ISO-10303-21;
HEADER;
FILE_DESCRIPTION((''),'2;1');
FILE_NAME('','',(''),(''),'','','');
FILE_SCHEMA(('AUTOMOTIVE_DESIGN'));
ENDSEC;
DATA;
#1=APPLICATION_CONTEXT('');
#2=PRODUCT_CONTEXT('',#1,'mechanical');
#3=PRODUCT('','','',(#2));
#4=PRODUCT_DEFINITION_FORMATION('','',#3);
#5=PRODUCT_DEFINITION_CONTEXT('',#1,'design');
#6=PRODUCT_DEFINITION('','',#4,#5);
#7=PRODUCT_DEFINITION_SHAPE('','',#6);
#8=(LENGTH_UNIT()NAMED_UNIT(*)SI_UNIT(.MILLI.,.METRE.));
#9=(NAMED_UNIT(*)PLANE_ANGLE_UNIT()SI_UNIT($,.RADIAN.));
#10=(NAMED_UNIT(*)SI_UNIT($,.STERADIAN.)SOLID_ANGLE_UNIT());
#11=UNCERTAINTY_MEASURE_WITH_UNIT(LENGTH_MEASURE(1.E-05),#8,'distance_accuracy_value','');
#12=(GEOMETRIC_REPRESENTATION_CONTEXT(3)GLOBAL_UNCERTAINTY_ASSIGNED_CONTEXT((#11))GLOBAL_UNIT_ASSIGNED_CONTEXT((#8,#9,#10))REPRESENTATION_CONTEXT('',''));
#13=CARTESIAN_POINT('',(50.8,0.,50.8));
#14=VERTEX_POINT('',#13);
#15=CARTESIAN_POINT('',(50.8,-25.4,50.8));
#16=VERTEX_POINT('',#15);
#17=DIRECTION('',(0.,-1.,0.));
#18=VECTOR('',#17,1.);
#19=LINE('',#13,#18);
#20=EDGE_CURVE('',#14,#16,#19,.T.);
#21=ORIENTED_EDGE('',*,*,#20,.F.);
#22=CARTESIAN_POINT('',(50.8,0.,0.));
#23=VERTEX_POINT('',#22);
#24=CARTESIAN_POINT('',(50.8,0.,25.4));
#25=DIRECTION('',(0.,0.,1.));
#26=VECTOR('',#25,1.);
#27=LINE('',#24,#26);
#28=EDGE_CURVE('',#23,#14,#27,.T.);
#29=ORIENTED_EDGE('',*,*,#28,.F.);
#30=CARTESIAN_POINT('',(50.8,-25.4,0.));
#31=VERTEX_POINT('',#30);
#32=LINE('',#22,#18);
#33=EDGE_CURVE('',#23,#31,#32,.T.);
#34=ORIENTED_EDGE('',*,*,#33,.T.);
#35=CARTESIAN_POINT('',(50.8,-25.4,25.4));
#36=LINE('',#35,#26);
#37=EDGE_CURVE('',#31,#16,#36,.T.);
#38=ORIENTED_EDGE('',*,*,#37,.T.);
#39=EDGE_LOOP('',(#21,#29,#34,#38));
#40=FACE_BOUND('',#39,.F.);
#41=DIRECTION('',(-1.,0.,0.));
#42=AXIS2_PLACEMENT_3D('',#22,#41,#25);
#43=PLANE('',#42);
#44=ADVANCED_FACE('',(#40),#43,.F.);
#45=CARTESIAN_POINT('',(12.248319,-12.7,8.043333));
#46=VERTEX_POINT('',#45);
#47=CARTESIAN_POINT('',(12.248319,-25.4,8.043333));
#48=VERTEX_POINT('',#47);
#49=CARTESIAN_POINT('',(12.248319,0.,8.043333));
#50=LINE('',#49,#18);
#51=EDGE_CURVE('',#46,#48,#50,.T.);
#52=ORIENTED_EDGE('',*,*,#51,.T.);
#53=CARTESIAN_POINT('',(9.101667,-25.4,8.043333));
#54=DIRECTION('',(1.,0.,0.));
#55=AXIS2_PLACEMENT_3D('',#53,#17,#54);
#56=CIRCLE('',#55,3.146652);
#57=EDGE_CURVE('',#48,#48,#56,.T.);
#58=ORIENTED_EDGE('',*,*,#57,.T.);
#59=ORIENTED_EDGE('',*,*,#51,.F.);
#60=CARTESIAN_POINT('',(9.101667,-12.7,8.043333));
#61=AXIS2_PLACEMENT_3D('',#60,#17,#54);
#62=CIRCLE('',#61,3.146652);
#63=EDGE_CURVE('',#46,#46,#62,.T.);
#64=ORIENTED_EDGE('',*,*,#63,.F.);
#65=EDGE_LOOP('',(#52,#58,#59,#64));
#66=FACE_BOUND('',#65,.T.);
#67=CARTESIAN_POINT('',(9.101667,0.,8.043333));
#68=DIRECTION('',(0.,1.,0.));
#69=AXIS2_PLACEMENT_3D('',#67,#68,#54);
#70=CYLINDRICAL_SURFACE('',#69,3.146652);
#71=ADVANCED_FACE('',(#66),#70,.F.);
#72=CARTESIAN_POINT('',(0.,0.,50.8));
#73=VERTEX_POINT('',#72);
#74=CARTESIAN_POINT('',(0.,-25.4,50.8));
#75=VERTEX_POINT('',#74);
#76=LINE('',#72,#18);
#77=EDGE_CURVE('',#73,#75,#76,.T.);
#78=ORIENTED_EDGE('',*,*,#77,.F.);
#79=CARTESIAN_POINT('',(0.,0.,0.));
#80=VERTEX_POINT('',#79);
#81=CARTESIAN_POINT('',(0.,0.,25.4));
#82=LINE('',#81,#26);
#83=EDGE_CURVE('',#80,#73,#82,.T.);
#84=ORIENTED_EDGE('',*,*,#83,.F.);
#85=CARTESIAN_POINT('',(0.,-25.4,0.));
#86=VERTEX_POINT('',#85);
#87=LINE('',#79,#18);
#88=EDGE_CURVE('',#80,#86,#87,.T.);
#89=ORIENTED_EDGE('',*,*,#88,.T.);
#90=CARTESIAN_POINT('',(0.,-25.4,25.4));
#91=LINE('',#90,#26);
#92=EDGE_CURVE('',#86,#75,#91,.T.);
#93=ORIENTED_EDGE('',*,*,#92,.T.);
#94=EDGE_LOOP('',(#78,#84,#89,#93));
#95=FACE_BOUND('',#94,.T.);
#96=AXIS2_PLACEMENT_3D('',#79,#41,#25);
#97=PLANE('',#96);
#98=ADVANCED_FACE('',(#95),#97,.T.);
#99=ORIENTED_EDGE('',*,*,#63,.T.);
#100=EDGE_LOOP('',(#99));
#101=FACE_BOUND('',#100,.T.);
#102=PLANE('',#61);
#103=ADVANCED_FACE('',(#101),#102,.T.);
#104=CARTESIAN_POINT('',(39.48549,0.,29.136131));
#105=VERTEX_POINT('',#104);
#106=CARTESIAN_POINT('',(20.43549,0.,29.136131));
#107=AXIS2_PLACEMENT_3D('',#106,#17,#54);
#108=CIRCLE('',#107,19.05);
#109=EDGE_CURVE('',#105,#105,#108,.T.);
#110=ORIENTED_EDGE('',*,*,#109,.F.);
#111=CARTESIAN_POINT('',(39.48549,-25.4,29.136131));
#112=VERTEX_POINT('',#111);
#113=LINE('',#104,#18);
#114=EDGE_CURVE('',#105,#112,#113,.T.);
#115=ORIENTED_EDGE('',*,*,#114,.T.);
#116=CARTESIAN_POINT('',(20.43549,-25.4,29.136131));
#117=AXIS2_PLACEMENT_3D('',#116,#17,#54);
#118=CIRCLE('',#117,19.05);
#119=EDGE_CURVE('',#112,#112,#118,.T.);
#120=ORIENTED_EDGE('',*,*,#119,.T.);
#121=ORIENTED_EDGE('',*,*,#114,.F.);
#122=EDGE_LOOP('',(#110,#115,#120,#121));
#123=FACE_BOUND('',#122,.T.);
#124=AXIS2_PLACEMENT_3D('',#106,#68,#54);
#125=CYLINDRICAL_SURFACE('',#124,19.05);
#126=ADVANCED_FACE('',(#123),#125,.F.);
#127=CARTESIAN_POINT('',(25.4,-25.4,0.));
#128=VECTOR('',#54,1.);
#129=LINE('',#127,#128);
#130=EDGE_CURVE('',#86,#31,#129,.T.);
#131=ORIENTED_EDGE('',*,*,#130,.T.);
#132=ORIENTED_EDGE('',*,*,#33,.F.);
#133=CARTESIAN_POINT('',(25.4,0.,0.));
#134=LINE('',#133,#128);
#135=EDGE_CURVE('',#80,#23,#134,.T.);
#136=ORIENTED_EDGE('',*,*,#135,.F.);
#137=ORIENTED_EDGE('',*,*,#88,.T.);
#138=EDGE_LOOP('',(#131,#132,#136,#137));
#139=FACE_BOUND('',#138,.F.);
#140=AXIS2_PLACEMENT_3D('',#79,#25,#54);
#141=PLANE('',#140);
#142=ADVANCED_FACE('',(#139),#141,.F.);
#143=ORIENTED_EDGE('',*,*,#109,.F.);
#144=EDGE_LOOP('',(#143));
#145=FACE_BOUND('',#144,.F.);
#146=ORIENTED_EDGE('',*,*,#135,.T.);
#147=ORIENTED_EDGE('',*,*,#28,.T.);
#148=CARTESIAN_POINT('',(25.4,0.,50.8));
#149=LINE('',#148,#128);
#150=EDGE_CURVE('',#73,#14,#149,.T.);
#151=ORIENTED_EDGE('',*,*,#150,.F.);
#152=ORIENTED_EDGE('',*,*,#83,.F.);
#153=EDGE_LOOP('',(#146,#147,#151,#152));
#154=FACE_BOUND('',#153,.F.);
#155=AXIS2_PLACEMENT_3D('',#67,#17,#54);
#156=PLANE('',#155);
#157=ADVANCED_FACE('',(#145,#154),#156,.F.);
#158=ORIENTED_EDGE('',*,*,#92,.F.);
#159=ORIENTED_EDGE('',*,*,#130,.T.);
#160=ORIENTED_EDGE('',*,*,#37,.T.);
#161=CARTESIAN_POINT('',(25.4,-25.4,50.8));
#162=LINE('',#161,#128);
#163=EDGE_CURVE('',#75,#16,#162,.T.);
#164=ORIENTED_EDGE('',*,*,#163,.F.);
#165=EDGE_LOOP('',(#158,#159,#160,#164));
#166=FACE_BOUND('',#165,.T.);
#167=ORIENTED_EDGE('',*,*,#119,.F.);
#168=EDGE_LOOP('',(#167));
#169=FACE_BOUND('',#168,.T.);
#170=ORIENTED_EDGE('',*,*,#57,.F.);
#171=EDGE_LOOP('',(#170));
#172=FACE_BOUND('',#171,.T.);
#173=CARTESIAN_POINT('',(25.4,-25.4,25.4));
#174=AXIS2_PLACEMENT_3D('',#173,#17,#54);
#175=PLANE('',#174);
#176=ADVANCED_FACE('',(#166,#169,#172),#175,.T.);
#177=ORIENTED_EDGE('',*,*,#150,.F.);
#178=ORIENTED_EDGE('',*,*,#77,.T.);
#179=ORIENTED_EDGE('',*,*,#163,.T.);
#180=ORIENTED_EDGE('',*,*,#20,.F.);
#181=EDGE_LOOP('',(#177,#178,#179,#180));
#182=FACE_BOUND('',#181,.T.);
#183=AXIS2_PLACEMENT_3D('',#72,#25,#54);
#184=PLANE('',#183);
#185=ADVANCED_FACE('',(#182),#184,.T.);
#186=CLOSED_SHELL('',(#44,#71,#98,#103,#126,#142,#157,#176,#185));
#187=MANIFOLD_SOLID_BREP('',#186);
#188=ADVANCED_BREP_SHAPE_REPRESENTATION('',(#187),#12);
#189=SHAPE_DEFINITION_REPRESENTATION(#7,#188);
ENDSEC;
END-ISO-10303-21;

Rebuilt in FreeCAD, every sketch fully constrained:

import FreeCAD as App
import Part
import Sketcher
Q = App.Units.Quantity


def add_polygon(sketch, points):
    """Adds a closed chain of lines whose ends are joined by coincident constraints."""
    first, n = sketch.GeometryCount, len(points)
    for a, b in zip(points, points[1:] + points[:1]):
        sketch.addGeometry(Part.LineSegment(App.Vector(*a, 0), App.Vector(*b, 0)), False)
    for i in range(n):
        sketch.addConstraint(Sketcher.Constraint("Coincident", first + i, 2, first + (i + 1) % n, 1))

doc = App.newDocument("Part")
body = doc.addObject("PartDesign::Body", "Body")

# Sketch on XZ plane
sketch1 = body.newObject("Sketcher::SketchObject", "Sketch")
sketch1.AttachmentSupport = (doc.getObject("XZ_Plane"), [""])
sketch1.MapMode = "FlatFace"
add_polygon(sketch1, [(0, 50.8), (0, 0), (50.8, 0), (50.8, 50.8)])  # lines 0-3
sketch1.addGeometry(Part.Circle(App.Vector(9.1, 8, 0), App.Vector(0, 0, 1), 3.1), False)  # 4
sketch1.addGeometry(Part.Circle(App.Vector(20.4, 29.1, 0), App.Vector(0, 0, 1), 19.1), False)  # 5
sketch1.addConstraint(Sketcher.Constraint("Vertical", 0))
sketch1.addConstraint(Sketcher.Constraint("Horizontal", 1))
sketch1.addConstraint(Sketcher.Constraint("Vertical", 2))
sketch1.addConstraint(Sketcher.Constraint("Horizontal", 3))
sketch1.addConstraint(Sketcher.Constraint("Coincident", 0, 2, -1, 1))
sketch1.addConstraint(Sketcher.Constraint("Equal", 3, 0))
sketch1.addConstraint(Sketcher.Constraint("Diameter", 5, Q("1.5 in")))
sketch1.addConstraint(Sketcher.Constraint("DistanceX", 1, 1, 1, 2, Q("2 in")))
sketch1.addConstraint(Sketcher.Constraint("Diameter", 4, Q("6.293304 mm")))
sketch1.addConstraint(Sketcher.Constraint("DistanceX", -1, 1, 5, 3, Q("20.43549 mm")))
sketch1.addConstraint(Sketcher.Constraint("DistanceY", -1, 1, 5, 3, Q("29.136131 mm")))
sketch1.addConstraint(Sketcher.Constraint("DistanceX", -1, 1, 4, 3, Q("9.101667 mm")))
sketch1.addConstraint(Sketcher.Constraint("DistanceY", -1, 1, 4, 3, Q("8.043333 mm")))
pad1 = body.newObject("PartDesign::Pad", "Pad")
pad1.Profile = sketch1
pad1.Length = Q("1 in")

# Sketch on XZ plane
sketch2 = body.newObject("Sketcher::SketchObject", "Sketch001")
sketch2.AttachmentSupport = (doc.getObject("XZ_Plane"), [""])
sketch2.MapMode = "FlatFace"
sketch2.addGeometry(Part.Circle(App.Vector(9.1, 8, 0), App.Vector(0, 0, 1), 3.1), False)
sketch2.addConstraint(Sketcher.Constraint("Diameter", 0, Q("6.293304 mm")))
sketch2.addConstraint(Sketcher.Constraint("DistanceX", -1, 1, 0, 3, Q("9.101667 mm")))
sketch2.addConstraint(Sketcher.Constraint("DistanceY", -1, 1, 0, 3, Q("8.043333 mm")))
pad2 = body.newObject("PartDesign::Pad", "Pad001")
pad2.Profile = sketch2
pad2.Length = Q("0.5 in")

doc.recompute()
